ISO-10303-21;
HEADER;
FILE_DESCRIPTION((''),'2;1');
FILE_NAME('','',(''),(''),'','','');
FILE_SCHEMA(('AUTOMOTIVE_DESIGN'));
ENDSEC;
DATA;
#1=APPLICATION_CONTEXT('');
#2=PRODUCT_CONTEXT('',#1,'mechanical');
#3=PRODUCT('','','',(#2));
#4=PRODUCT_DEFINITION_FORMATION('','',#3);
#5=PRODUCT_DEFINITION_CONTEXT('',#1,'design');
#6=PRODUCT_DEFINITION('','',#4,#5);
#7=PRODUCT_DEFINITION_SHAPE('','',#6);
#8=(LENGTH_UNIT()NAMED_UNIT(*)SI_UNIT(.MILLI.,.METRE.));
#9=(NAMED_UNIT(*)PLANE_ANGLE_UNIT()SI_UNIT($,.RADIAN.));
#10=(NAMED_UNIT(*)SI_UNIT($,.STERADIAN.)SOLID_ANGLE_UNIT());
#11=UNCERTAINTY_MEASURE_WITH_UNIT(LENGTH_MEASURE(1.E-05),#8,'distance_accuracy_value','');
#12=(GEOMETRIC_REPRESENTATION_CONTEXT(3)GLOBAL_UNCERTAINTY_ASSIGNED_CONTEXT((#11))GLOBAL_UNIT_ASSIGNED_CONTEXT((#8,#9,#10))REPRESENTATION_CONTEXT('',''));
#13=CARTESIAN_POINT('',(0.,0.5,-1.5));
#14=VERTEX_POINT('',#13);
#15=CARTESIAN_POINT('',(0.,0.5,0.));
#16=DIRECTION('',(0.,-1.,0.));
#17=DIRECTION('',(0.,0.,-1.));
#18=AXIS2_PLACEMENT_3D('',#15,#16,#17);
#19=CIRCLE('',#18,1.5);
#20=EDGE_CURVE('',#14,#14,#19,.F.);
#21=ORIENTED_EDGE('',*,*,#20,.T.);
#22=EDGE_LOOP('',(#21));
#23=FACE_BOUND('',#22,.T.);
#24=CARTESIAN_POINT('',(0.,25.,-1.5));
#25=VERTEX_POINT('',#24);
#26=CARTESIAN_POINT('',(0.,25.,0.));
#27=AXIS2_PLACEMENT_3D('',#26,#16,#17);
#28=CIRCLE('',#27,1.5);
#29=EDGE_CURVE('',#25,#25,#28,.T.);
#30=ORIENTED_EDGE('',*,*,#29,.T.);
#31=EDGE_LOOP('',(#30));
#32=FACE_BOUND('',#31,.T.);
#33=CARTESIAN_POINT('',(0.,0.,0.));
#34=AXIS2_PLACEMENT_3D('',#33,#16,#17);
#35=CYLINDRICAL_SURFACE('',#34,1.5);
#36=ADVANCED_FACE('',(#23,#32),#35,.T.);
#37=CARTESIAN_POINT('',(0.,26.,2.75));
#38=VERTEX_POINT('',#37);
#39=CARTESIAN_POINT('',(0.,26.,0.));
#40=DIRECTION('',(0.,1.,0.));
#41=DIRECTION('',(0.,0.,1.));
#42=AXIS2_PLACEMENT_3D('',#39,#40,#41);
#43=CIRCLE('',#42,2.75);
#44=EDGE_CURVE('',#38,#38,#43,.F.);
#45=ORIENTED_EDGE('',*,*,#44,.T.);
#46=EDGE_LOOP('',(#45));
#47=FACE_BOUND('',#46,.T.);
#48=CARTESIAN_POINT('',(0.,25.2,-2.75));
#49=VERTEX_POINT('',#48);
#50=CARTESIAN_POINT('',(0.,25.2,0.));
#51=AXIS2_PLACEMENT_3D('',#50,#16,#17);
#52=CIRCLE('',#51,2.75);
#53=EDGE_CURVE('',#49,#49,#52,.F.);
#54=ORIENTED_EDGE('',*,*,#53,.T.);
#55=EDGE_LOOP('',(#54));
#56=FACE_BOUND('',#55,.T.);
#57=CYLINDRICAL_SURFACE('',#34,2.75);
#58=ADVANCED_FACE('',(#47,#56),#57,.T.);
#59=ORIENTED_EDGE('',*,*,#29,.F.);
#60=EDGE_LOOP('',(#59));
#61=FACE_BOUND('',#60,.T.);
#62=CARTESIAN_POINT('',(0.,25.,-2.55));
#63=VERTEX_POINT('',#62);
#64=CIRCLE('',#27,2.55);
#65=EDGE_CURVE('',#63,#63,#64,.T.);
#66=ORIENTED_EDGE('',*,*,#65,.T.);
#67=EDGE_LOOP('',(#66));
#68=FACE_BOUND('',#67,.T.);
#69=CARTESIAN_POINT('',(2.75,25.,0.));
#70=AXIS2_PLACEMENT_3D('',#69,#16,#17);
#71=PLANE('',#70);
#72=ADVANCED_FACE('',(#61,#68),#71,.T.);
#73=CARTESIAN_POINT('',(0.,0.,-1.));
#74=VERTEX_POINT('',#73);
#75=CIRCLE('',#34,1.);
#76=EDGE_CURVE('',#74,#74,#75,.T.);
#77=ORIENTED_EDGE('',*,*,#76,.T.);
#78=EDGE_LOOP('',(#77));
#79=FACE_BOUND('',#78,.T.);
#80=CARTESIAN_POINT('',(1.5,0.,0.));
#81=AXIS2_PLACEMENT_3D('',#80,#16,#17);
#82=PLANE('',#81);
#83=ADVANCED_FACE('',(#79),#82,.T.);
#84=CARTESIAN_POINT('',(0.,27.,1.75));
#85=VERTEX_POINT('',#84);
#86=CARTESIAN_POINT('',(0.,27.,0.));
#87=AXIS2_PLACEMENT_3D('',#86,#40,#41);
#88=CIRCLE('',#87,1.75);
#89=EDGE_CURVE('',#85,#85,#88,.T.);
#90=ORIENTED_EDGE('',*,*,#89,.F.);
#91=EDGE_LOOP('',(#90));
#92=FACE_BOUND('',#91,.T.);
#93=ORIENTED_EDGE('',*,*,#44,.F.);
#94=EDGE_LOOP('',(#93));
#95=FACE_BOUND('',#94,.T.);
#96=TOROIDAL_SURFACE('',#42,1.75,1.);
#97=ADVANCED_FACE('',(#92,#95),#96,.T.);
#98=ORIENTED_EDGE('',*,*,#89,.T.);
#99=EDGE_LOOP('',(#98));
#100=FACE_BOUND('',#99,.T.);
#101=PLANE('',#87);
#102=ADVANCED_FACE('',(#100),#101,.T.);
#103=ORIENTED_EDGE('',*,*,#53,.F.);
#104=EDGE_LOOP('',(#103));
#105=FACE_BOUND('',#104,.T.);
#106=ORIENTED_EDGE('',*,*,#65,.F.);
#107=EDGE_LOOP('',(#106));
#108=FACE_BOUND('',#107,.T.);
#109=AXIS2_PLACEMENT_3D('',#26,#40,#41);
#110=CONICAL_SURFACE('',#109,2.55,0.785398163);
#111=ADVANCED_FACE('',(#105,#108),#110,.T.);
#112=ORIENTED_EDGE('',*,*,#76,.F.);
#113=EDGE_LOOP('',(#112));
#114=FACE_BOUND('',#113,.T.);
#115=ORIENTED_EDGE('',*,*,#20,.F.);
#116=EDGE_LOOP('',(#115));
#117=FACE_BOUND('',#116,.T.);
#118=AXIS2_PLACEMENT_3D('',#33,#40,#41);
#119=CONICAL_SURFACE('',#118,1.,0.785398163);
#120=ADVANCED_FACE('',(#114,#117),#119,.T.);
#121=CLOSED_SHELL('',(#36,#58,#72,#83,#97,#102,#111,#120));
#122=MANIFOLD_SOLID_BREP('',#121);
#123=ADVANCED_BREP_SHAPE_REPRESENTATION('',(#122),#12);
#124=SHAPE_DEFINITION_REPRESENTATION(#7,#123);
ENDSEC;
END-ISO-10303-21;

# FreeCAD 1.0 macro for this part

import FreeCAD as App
import Part
import Sketcher
from FreeCAD import Vector
Q = App.Units.Quantity


def edges_at(feature, points):
    """Names of the edges that pass closest to the given points."""
    edges = feature.Shape.Edges
    near = lambda p: min(range(len(edges)), key=lambda i: edges[i].distToShape(Part.Vertex(*p))[0])
    return sorted({f"Edge{near(p) + 1}" for p in points})

doc = App.newDocument("Part")
body = doc.addObject("PartDesign::Body", "Body")

sketch1 = body.newObject("Sketcher::SketchObject", "Sketch")
sketch1.AttachmentSupport = (doc.getObject("XY_Plane"), [""])
sketch1.MapMode = "FlatFace"
sketch1.addGeometry([
    Part.LineSegment(Vector(0, 27, 0), Vector(0, 0, 0)),
    Part.LineSegment(Vector(0, 0, 0), Vector(1.5, 0, 0)),
    Part.LineSegment(Vector(1.5, 0, 0), Vector(1.5, 25, 0)),
    Part.LineSegment(Vector(1.5, 25, 0), Vector(2.75, 25, 0)),
    Part.LineSegment(Vector(2.75, 25, 0), Vector(2.75, 27, 0)),
    Part.LineSegment(Vector(2.75, 27, 0), Vector(0, 27, 0)),
], False)
sketch1.addConstraint([
    Sketcher.Constraint("Coincident", 0, 2, 1, 1),
    Sketcher.Constraint("Coincident", 1, 2, 2, 1),
    Sketcher.Constraint("Coincident", 2, 2, 3, 1),
    Sketcher.Constraint("Coincident", 3, 2, 4, 1),
    Sketcher.Constraint("Coincident", 4, 2, 5, 1),
    Sketcher.Constraint("Coincident", 5, 2, 0, 1),
    Sketcher.Constraint("Vertical", 0),
    Sketcher.Constraint("Horizontal", 1),
    Sketcher.Constraint("Vertical", 2),
    Sketcher.Constraint("Horizontal", 3),
    Sketcher.Constraint("Vertical", 4),
    Sketcher.Constraint("Horizontal", 5),
    Sketcher.Constraint("Coincident", 0, 2, -1, 1),
    Sketcher.Constraint("DistanceY", 0, 2, 0, 1, Q("27 mm")),
    Sketcher.Constraint("DistanceY", 2, 1, 2, 2, Q("25 mm")),
    Sketcher.Constraint("DistanceX", 1, 1, 1, 2, Q("1.5 mm")),
    Sketcher.Constraint("DistanceX", 3, 1, 3, 2, Q("1.25 mm")),
])
revolution = body.newObject("PartDesign::Revolution", "Revolution")
revolution.Profile = sketch1
revolution.ReferenceAxis = (sketch1, ["V_Axis"])
revolution.Angle = 360
doc.recompute()

fillet = body.newObject("PartDesign::Fillet", "Fillet")
fillet.Base = (revolution, edges_at(revolution, [(0, 27, 2.75)]))
fillet.Radius = 1
doc.recompute()

chamfer = body.newObject("PartDesign::Chamfer", "Chamfer")
chamfer.Base = (fillet, edges_at(fillet, [(0, 0, 1.5)]))
chamfer.Size = 0.5
doc.recompute()

chamfer2 = body.newObject("PartDesign::Chamfer", "Chamfer001")
chamfer2.Base = (chamfer, edges_at(chamfer, [(0, 25, 2.75)]))
chamfer2.Size = 0.2

doc.recompute()
